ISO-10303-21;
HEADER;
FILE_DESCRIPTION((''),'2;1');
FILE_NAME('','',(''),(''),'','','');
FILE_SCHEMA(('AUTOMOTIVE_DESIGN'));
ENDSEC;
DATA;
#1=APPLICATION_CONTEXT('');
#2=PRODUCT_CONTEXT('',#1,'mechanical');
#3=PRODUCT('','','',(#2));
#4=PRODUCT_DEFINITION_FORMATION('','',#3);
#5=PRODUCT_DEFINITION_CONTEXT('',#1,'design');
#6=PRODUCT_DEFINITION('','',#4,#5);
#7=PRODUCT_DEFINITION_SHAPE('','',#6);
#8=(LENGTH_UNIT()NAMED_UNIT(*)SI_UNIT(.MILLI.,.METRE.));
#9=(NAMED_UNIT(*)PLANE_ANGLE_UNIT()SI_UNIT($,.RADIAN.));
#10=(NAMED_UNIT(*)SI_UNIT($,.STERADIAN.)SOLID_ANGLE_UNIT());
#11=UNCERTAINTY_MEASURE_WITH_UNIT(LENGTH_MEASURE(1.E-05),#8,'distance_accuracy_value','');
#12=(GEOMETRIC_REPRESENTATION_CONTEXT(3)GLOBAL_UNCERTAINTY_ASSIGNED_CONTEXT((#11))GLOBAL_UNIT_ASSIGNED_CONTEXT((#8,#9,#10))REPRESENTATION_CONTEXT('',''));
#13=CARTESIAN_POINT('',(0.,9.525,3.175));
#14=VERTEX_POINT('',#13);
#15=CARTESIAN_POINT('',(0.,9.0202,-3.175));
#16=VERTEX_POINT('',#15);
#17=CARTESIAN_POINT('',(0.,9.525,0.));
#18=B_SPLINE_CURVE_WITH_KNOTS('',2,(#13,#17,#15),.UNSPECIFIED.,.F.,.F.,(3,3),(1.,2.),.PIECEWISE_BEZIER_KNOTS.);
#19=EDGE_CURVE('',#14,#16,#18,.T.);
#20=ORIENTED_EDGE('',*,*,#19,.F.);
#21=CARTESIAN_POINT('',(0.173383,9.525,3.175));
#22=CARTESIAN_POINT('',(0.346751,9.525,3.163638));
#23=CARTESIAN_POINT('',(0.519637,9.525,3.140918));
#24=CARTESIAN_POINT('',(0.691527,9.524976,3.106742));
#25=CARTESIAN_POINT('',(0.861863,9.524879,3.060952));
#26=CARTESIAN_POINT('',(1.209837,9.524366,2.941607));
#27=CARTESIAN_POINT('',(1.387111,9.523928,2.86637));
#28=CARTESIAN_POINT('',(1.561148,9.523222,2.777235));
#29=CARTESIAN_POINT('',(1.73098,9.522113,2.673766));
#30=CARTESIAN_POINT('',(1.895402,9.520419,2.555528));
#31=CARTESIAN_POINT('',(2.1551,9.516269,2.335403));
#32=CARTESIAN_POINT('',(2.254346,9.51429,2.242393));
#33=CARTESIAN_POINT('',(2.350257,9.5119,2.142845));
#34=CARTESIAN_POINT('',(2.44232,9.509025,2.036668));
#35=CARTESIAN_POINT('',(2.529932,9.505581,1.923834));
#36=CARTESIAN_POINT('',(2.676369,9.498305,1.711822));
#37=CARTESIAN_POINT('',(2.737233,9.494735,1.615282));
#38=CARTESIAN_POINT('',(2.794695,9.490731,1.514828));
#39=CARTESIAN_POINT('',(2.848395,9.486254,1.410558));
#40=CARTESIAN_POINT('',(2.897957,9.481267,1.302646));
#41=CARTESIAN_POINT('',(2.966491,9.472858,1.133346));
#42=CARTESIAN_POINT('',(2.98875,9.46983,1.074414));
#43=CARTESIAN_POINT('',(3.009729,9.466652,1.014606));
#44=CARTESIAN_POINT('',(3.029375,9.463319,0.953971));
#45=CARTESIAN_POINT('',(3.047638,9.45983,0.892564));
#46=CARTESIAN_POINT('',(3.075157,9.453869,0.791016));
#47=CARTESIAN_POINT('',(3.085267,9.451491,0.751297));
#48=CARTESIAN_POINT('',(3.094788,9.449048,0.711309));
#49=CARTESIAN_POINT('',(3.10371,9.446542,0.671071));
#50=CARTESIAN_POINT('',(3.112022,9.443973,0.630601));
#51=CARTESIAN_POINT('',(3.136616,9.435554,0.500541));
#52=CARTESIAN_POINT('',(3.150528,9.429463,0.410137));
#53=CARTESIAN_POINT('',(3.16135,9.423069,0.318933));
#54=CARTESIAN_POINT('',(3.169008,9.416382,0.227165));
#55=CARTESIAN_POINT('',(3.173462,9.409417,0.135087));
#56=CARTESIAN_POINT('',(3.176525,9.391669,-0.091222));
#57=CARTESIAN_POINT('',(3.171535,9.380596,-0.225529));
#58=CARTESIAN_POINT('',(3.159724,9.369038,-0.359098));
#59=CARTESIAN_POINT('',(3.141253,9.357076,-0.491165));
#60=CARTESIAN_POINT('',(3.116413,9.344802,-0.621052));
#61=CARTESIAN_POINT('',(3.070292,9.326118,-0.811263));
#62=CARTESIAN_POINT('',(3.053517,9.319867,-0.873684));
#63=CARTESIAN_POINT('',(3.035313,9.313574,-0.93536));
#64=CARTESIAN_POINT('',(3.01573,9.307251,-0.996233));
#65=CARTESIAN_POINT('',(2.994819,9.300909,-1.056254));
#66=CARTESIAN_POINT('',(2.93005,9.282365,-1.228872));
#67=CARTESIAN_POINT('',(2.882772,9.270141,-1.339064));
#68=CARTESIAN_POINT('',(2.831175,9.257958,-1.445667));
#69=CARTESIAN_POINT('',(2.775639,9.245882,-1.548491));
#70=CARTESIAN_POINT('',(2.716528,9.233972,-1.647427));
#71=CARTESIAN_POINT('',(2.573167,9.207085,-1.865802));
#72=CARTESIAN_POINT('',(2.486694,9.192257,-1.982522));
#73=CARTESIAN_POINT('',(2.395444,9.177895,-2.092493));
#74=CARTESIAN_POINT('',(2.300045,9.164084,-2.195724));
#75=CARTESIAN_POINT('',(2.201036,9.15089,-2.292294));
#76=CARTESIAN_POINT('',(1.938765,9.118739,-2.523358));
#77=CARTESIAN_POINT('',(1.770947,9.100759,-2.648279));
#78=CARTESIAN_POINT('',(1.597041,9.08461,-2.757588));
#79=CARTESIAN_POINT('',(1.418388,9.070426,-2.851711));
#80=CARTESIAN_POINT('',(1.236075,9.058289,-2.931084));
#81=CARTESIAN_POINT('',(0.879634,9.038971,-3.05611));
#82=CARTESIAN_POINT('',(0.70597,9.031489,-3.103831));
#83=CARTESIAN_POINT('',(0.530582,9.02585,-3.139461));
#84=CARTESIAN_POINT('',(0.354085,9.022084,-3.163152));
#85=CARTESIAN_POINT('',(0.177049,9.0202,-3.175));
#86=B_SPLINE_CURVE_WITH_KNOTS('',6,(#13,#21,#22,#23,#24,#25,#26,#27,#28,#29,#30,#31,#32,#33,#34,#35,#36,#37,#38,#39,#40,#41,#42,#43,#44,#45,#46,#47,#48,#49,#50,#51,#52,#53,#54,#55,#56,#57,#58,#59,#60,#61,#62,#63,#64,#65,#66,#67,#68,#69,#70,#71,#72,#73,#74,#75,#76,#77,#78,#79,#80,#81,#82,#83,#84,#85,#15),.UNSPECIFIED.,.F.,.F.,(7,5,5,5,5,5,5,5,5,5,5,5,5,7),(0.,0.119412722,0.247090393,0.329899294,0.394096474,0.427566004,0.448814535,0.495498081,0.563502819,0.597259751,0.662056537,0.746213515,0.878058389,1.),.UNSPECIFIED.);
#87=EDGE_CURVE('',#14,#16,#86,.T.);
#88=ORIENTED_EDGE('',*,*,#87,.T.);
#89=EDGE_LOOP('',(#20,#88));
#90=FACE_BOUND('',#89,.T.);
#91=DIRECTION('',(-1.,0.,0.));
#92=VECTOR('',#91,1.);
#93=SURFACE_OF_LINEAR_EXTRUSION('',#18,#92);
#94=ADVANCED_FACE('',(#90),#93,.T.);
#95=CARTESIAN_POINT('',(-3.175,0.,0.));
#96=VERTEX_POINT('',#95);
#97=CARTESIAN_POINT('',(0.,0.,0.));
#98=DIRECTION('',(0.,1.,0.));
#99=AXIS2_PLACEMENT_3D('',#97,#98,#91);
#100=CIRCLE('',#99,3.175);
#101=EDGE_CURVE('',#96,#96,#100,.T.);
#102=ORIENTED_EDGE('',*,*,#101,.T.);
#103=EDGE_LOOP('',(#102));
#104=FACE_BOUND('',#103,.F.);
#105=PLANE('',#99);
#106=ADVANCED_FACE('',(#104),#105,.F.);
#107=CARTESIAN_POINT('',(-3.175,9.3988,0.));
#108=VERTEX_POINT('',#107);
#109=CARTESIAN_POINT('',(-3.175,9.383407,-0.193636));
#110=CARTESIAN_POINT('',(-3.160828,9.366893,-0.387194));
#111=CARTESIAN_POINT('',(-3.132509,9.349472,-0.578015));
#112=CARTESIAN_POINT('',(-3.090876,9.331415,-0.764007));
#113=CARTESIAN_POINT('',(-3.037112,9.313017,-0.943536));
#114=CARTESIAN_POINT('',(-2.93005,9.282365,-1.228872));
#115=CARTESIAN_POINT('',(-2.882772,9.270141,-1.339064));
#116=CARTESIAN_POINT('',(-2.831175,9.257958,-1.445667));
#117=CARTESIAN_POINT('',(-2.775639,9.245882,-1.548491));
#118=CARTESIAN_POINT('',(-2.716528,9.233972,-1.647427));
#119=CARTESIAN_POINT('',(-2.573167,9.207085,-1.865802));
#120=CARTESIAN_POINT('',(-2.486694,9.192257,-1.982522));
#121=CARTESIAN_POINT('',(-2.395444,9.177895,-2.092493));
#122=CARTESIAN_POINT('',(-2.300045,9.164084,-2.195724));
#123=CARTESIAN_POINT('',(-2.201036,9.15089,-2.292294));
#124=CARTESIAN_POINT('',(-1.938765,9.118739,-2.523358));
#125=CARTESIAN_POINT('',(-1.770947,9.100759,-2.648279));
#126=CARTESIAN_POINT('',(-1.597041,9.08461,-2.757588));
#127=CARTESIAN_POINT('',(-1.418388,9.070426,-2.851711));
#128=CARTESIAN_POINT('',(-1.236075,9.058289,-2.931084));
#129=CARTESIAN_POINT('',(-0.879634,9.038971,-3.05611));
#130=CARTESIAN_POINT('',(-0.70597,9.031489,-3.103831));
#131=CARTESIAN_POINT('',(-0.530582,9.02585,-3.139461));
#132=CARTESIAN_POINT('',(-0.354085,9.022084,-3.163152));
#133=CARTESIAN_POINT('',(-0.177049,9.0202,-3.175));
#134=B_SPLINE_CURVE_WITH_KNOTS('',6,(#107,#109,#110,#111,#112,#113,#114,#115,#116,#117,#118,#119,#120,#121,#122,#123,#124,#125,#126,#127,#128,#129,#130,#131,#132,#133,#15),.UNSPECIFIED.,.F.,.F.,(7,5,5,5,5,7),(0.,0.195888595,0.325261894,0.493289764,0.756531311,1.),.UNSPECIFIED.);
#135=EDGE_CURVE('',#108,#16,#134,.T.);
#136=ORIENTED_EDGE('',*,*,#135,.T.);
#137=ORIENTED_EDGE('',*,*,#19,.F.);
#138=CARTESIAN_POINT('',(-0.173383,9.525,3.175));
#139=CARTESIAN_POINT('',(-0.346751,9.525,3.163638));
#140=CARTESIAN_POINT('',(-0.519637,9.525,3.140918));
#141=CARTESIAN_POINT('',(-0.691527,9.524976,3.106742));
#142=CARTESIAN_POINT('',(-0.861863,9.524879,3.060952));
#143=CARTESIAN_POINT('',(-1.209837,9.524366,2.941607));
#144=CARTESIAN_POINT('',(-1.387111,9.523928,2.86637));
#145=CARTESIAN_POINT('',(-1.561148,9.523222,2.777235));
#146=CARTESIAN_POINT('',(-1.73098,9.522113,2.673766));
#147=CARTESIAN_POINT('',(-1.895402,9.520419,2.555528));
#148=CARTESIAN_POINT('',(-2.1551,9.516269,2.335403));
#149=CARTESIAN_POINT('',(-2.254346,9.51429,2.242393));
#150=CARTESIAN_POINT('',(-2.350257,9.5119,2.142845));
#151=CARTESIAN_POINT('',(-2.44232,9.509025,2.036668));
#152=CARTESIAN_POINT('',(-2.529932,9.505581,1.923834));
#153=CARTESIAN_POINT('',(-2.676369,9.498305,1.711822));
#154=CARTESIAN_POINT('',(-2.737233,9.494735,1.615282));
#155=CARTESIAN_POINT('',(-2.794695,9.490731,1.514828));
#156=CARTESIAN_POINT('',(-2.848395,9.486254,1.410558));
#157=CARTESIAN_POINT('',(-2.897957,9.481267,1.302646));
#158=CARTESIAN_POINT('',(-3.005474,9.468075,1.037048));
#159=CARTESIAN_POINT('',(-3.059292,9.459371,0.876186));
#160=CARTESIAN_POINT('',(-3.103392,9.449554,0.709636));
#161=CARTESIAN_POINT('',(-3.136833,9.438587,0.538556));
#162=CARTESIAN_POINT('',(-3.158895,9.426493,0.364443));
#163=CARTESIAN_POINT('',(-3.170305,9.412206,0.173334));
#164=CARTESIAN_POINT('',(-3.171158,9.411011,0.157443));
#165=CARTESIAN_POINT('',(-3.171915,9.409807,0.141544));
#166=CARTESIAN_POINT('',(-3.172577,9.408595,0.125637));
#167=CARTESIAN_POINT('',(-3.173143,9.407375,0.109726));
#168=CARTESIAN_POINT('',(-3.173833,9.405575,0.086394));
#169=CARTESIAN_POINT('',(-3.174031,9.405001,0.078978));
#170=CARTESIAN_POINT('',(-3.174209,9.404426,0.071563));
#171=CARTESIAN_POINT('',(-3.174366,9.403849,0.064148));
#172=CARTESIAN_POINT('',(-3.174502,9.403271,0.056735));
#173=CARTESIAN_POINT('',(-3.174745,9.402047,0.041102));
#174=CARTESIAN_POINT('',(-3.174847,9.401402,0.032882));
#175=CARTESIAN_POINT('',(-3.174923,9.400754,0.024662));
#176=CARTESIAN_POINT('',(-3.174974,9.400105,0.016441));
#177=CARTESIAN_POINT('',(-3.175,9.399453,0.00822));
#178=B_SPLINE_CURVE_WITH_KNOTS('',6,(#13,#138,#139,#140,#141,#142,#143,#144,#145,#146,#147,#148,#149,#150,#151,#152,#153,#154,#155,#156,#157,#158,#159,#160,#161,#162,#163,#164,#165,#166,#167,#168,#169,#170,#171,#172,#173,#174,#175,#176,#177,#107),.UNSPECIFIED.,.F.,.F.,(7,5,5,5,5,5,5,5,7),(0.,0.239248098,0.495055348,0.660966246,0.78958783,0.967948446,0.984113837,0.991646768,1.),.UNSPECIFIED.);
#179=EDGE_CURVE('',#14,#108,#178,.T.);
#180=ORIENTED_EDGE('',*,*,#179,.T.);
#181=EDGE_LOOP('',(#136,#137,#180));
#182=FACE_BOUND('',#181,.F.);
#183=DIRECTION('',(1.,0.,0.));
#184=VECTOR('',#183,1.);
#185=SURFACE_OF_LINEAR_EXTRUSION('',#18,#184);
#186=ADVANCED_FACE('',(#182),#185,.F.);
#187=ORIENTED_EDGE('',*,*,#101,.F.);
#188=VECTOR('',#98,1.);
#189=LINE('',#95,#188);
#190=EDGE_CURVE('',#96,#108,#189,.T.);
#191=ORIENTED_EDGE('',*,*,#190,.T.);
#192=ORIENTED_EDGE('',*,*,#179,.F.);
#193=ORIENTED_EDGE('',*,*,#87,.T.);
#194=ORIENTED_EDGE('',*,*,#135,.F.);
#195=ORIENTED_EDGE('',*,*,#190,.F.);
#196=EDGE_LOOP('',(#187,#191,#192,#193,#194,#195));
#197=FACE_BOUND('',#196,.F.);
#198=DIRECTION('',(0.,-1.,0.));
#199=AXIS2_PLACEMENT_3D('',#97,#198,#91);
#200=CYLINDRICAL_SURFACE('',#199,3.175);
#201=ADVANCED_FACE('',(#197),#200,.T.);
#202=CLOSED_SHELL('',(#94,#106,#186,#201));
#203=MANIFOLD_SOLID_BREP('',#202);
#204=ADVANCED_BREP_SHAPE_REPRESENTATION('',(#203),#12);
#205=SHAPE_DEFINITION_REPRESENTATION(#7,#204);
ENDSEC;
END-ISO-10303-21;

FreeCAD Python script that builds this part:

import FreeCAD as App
import Part
import Sketcher
from FreeCAD import Vector
Q = App.Units.Quantity

doc = App.newDocument("Part")
body = doc.addObject("PartDesign::Body", "Body")

# Sketch on XZ plane
sketch1 = body.newObject("Sketcher::SketchObject", "Sketch")
sketch1.AttachmentSupport = (doc.getObject("XZ_Plane"), [""])
sketch1.MapMode = "FlatFace"
sketch1.addGeometry(Part.Circle(Vector(0, 0, 0), Vector(0, 0, 1), 3.2), False)
sketch1.addConstraint([
    Sketcher.Constraint("Coincident", 0, 3, -1, 1),
    Sketcher.Constraint("Diameter", 0, Q("0.25 in")),
])
pad1 = body.newObject("PartDesign::Pad", "Pad")
pad1.Profile = sketch1
pad1.Length = Q("0.375 in")
pad1.Reversed = True

# Sketch on YZ plane
sketch2 = body.newObject("Sketcher::SketchObject", "Sketch001")
sketch2.AttachmentSupport = (doc.getObject("YZ_Plane"), [""])
sketch2.MapMode = "FlatFace"
sketch2.addGeometry([
    Part.LineSegment(Vector(9.0202, -3.175, 0), Vector(9.525, -3.175, 0)),
    Part.LineSegment(Vector(9.525, -3.175, 0), Vector(9.525, 3.175, 0)),
    Part.BSplineCurve([Vector(9.525, 3.175, 0), Vector(9.525, 0, 0), Vector(9.0202, -3.175, 0)], [3, 3], [1, 2], False, 2, [1, 1, 1], False),
], False)
sketch2.addConstraint([
    Sketcher.Constraint("Block", 2),
    Sketcher.Constraint("Coincident", 0, 2, 1, 1),
    Sketcher.Constraint("Coincident", 1, 2, 2, 1),
    Sketcher.Constraint("Coincident", 2, 2, 0, 1),
    Sketcher.Constraint("Horizontal", 0),
    Sketcher.Constraint("Vertical", 1),
])
pocket1 = body.newObject("PartDesign::Pocket", "Pocket")
pocket1.Profile = sketch2
pocket1.Type = "ThroughAll"
pocket1.Midplane = True

doc.recompute()
